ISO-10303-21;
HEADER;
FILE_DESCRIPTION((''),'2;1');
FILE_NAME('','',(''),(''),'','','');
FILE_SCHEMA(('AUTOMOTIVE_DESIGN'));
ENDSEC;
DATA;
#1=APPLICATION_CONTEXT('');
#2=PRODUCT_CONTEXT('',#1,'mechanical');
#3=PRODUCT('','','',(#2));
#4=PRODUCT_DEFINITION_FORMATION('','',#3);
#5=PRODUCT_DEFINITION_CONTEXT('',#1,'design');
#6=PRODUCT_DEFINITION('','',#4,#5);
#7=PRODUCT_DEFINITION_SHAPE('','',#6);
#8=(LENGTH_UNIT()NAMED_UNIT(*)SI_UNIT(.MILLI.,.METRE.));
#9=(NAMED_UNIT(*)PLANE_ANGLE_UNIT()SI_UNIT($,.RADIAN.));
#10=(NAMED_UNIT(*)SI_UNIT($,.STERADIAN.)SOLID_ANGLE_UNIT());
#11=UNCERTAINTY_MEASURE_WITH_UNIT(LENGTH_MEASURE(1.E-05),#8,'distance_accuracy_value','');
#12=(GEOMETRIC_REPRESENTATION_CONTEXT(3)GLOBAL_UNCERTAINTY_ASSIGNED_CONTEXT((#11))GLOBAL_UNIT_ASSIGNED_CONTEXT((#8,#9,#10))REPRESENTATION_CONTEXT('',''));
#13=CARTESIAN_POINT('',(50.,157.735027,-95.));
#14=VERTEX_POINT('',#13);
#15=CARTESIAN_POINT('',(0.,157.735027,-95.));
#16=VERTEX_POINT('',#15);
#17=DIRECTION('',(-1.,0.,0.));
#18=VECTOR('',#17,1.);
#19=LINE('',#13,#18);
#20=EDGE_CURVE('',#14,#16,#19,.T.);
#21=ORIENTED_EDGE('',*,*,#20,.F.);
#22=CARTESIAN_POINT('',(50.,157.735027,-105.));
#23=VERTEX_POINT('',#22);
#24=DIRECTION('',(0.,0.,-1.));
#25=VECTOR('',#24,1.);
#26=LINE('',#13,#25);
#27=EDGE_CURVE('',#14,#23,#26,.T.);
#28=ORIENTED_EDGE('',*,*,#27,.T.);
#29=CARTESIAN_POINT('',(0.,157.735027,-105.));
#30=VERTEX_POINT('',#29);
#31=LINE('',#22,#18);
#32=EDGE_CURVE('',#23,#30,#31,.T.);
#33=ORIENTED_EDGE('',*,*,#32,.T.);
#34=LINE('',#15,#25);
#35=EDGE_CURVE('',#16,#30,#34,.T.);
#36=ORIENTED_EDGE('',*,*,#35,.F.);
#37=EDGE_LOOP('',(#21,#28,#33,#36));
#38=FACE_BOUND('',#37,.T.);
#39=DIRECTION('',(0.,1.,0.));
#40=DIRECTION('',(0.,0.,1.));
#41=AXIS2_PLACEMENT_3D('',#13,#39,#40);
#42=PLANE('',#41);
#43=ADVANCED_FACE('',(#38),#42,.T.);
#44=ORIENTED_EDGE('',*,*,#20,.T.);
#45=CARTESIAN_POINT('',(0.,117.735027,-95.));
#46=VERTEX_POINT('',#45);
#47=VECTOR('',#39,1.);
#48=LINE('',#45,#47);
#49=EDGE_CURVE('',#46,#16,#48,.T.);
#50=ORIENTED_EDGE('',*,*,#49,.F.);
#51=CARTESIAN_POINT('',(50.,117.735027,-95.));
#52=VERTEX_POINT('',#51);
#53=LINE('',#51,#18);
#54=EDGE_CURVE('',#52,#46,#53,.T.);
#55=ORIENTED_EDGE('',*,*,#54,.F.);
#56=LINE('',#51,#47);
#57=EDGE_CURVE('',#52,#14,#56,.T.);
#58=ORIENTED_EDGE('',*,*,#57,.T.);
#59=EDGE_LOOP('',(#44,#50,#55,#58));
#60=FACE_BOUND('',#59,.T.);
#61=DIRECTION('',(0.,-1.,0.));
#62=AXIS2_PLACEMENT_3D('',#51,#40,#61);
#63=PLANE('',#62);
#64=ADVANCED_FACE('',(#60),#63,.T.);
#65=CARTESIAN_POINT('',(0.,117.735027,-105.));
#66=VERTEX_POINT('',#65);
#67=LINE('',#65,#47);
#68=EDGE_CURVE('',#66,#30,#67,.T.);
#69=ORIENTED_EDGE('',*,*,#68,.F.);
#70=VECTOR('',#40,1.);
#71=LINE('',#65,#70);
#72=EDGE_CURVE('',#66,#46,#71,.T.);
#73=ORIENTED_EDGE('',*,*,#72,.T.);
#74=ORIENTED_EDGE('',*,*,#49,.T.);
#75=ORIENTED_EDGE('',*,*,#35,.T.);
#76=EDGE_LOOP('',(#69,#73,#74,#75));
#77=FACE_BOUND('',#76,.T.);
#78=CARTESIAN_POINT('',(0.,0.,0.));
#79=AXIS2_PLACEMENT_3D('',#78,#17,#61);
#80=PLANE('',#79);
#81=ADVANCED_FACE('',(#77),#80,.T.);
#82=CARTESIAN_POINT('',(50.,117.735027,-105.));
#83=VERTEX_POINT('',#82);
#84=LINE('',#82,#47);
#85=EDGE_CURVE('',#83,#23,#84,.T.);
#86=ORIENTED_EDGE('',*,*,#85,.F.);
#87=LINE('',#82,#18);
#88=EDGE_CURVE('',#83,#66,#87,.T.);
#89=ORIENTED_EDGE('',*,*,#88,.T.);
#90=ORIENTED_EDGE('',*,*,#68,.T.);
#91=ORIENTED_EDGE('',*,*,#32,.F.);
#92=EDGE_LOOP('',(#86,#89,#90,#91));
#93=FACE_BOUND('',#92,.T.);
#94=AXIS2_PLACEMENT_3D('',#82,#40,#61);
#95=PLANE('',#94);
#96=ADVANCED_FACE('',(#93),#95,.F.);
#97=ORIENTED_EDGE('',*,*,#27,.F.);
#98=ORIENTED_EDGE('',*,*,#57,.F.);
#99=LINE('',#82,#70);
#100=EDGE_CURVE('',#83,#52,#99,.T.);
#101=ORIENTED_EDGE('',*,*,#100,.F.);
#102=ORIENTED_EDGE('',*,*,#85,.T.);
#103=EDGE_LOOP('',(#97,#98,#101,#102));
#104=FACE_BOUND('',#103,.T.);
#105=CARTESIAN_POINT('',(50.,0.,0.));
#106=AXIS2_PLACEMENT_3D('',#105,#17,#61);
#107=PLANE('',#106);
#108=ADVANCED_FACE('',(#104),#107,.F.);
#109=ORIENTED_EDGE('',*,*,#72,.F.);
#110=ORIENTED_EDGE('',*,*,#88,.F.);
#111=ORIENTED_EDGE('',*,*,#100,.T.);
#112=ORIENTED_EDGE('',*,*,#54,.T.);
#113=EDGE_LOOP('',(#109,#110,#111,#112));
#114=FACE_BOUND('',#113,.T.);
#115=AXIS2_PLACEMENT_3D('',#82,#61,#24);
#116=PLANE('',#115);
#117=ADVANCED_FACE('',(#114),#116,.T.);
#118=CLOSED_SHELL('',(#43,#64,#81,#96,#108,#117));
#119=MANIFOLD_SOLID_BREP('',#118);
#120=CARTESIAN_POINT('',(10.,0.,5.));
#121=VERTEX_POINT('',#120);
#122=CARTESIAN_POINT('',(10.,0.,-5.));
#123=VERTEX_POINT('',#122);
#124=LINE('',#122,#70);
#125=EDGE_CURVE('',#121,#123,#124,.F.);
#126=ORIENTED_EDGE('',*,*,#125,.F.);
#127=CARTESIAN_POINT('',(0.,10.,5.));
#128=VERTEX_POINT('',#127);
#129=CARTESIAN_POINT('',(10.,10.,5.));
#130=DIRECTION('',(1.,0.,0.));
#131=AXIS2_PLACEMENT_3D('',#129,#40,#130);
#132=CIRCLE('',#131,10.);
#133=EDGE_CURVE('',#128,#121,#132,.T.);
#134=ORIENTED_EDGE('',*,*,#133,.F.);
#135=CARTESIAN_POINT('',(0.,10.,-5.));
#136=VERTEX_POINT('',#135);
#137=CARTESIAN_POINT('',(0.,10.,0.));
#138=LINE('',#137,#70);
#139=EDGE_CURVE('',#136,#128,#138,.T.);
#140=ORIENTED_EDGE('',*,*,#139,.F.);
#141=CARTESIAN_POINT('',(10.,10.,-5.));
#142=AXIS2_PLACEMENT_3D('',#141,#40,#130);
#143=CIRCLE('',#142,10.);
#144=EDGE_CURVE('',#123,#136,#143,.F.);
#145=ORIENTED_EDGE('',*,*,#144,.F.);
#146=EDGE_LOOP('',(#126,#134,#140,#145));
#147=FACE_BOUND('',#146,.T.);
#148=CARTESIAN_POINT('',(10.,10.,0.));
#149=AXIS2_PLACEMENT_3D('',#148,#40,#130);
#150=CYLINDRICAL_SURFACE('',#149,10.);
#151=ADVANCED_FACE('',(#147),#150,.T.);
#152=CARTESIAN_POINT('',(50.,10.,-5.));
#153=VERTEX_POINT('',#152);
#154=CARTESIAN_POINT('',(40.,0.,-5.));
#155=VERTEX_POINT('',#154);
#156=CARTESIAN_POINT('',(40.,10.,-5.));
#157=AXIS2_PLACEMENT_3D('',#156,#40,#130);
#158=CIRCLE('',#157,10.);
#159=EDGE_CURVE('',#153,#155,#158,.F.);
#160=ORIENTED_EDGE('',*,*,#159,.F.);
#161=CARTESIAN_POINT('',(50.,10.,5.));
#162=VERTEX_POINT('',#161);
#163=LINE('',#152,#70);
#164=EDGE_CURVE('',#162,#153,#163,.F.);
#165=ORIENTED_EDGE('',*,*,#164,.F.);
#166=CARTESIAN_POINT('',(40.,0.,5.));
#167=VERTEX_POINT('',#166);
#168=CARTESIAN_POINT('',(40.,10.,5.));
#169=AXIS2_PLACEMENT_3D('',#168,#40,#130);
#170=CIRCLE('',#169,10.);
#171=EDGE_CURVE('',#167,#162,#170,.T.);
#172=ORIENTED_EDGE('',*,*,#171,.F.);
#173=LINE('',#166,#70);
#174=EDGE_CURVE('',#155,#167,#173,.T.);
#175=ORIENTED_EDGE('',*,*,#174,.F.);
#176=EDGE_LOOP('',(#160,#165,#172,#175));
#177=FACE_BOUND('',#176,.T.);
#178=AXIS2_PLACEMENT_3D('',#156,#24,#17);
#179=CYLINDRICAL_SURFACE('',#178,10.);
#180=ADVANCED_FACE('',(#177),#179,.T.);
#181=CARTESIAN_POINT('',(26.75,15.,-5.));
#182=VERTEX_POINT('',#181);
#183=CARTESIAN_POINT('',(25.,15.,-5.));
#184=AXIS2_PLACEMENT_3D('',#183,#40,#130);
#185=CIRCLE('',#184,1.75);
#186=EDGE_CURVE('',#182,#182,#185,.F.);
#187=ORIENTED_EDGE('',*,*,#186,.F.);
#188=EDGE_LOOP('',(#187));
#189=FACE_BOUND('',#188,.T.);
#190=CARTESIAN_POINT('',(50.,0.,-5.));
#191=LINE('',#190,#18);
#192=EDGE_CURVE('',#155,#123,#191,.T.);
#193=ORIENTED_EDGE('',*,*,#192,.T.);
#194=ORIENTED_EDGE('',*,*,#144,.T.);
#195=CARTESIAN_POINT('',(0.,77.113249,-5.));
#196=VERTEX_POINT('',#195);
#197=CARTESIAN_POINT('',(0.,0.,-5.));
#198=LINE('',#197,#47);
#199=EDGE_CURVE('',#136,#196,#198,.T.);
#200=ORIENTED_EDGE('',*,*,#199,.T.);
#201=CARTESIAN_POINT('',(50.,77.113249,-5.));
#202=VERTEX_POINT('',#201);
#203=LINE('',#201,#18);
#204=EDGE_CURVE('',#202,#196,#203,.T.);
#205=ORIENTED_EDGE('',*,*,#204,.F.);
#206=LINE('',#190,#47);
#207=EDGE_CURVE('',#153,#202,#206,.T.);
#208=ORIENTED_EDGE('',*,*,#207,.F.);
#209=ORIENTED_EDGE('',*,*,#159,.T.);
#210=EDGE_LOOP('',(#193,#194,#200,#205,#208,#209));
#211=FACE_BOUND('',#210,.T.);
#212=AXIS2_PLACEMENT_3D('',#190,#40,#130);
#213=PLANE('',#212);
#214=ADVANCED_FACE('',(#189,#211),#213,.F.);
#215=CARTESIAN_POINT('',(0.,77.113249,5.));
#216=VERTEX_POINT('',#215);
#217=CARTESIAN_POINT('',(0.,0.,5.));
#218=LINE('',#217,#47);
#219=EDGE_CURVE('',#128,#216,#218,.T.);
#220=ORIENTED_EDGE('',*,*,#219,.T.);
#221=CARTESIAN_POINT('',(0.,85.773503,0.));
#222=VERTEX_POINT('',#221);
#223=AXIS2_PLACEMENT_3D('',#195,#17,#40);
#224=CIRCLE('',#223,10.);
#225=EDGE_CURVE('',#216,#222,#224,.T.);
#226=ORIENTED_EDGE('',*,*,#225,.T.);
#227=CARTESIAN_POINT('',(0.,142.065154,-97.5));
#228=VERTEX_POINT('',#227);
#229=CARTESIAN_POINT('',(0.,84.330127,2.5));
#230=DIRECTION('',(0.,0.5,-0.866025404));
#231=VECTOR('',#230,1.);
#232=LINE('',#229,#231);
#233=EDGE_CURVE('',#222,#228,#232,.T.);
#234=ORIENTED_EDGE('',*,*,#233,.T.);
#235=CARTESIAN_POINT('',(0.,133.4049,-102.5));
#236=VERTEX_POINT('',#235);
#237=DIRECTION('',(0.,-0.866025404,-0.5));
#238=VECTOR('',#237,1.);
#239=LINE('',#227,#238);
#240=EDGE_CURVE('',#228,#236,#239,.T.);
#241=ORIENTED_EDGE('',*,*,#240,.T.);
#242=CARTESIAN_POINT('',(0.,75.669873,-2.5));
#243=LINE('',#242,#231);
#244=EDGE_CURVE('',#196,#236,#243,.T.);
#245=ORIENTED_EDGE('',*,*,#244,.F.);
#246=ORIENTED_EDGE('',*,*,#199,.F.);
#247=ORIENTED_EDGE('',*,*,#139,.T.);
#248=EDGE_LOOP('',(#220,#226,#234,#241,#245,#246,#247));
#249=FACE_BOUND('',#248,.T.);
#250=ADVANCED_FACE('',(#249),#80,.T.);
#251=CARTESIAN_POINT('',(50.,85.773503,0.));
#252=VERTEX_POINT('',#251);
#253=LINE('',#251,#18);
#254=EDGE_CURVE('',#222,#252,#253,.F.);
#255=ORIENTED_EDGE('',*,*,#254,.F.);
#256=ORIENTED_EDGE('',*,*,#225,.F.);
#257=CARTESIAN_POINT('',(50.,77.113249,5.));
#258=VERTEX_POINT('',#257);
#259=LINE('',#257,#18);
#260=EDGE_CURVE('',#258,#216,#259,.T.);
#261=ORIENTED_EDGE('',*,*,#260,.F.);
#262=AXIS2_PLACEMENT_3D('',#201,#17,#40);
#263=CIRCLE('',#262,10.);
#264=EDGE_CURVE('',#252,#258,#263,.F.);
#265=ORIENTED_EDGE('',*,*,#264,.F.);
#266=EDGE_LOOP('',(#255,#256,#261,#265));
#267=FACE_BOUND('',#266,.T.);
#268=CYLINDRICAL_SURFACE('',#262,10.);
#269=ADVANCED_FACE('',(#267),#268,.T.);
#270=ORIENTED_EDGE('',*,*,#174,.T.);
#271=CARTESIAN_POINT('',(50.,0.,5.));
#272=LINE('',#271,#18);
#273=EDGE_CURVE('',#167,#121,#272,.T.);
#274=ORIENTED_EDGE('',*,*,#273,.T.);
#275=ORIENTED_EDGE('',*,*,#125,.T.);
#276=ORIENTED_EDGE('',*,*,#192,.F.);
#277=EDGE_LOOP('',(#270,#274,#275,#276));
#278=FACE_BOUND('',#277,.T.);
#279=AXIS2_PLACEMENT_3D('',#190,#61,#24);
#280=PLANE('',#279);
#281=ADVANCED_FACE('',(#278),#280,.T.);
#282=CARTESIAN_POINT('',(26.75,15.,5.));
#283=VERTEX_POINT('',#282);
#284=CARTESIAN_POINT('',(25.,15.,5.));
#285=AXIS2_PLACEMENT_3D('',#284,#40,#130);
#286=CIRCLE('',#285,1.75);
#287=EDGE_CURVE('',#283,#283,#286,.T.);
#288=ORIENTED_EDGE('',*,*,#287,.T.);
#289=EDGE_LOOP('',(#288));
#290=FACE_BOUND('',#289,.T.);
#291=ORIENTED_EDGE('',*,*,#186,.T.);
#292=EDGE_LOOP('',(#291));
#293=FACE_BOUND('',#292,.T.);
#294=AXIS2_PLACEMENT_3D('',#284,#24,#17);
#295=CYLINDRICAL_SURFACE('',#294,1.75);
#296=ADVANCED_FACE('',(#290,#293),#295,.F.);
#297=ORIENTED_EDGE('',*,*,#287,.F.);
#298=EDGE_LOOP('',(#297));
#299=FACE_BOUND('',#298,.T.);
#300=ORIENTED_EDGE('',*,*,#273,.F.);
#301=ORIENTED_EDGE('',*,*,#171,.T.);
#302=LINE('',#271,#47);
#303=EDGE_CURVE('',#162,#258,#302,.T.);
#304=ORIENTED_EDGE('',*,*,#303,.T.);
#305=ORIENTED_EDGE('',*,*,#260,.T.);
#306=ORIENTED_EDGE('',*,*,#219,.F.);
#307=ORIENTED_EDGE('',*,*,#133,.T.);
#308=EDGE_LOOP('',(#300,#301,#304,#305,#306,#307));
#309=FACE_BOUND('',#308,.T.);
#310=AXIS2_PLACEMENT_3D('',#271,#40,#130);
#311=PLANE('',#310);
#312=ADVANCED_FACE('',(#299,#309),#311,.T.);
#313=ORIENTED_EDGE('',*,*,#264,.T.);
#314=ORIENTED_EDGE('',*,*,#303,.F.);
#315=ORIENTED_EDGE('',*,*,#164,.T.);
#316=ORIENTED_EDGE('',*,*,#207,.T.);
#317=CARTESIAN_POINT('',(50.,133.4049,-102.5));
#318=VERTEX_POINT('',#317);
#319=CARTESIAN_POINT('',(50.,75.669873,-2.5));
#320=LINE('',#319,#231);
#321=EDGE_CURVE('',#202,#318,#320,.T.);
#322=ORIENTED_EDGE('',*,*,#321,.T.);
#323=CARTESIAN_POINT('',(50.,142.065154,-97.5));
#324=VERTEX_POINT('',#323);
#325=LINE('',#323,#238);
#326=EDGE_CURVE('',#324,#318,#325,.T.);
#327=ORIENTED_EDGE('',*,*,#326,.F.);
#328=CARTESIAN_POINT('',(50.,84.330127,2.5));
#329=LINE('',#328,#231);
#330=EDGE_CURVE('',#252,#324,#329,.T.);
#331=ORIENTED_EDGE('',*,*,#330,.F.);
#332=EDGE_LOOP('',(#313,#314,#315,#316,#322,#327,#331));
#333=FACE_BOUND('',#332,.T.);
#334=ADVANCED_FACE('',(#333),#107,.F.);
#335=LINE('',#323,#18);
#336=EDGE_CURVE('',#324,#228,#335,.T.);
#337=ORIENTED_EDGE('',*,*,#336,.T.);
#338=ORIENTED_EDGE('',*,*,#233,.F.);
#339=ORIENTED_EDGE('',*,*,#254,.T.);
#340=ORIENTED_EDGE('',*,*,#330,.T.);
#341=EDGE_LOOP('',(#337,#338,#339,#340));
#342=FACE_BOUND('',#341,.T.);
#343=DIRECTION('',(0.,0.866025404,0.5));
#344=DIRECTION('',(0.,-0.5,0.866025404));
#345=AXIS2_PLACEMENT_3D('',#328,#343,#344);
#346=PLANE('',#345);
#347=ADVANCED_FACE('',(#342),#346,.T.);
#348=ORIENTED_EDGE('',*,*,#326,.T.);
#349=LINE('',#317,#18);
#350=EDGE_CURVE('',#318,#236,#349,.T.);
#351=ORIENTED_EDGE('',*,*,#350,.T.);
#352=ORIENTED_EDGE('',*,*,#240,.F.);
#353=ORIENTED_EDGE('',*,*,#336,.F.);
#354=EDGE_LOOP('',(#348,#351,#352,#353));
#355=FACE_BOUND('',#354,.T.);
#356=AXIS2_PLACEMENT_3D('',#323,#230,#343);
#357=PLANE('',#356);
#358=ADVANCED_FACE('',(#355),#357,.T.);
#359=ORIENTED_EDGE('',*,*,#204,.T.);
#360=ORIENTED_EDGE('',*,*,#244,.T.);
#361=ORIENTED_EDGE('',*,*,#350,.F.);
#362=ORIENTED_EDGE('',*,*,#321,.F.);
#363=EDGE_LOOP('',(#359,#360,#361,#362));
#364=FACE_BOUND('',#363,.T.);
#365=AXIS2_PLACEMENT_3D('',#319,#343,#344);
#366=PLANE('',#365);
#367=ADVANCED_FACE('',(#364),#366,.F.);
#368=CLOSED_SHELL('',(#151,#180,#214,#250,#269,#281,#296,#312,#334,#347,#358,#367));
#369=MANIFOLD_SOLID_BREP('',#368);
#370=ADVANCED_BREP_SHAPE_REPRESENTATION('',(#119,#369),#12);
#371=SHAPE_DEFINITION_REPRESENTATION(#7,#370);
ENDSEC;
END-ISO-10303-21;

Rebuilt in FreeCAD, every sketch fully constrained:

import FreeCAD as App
import Part
import Sketcher

V = App.Vector
Q = App.Units.Quantity


def edges_at(feature, points):
    """Names of the edges that pass closest to the given points."""
    edges = feature.Shape.Edges
    near = lambda p: min(range(len(edges)), key=lambda i: edges[i].distToShape(Part.Vertex(*p))[0])
    return sorted({f"Edge{near(p) + 1}" for p in points})

doc = App.newDocument("Part")
body = doc.addObject("PartDesign::Body", "Body")

# Sketch on YZ plane
sketch1 = body.newObject("Sketcher::SketchObject", "Sketch")
sketch1.AttachmentSupport = (doc.getObject("YZ_Plane"), [""])
sketch1.MapMode = "FlatFace"
sketch1.addGeometry([
    Part.LineSegment(V(0, -5, 0), V(77, -5, 0)),  # 0
    Part.LineSegment(V(77, -5, 0), V(133, -102, 0)),  # 1
    Part.LineSegment(V(133, -102, 0), V(142, -98, 0)),  # 2
    Part.LineSegment(V(142, -98, 0), V(83, 5, 0)),  # 3
    Part.LineSegment(V(83, 5, 0), V(0, 5, 0)),  # 4
    Part.LineSegment(V(0, 5, 0), V(0, -5, 0)),  # 5
], False)
sketch1.addConstraint([
    Sketcher.Constraint("Coincident", 0, 2, 1, 1),
    Sketcher.Constraint("Coincident", 1, 2, 2, 1),
    Sketcher.Constraint("Coincident", 2, 2, 3, 1),
    Sketcher.Constraint("Coincident", 3, 2, 4, 1),
    Sketcher.Constraint("Coincident", 4, 2, 5, 1),
    Sketcher.Constraint("Coincident", 5, 2, 0, 1),
    Sketcher.Constraint("Horizontal", 0),
    Sketcher.Constraint("Horizontal", 4),
    Sketcher.Constraint("Vertical", 5),
    Sketcher.Constraint("Symmetric", 4, 2, 5, 2, -1, 1),
    Sketcher.Constraint("Perpendicular", 1, 2),
    Sketcher.Constraint("Perpendicular", 2, 3),
    Sketcher.Constraint("DistanceY", 5, 2, 5, 1, Q("10 mm")),
    Sketcher.Constraint("Angle", 1, Q("-60 deg")),
    Sketcher.Constraint("Distance", 2, Q("10 mm")),
    Sketcher.Constraint("DistanceY", 1, 2, -1, 1, Q("102.5 mm")),
    Sketcher.Constraint("DistanceX", 0, 1, 0, 2, Q("77.113249 mm")),
])
pad1 = body.newObject("PartDesign::Pad", "Pad")
pad1.Profile = sketch1
pad1.Length = 50
doc.recompute()

fillet = body.newObject("PartDesign::Fillet", "Fillet")
fillet.Base = (pad1, edges_at(pad1, [(50, 0, 0), (0, 0, 0)]))
fillet.Radius = 10
doc.recompute()

fillet2 = body.newObject("PartDesign::Fillet", "Fillet001")
fillet2.Base = (fillet, edges_at(fillet, [(25, 82.887, 5)]))
fillet2.Radius = 10

# Sketch on XY plane
sketch2 = body.newObject("Sketcher::SketchObject", "Sketch001")
sketch2.AttachmentSupport = (doc.getObject("XY_Plane"), [""])
sketch2.MapMode = "FlatFace"
sketch2.addGeometry(Part.Circle(V(25, 15, 0), V(0, 0, 1), 1.8), False)
sketch2.addConstraint([
    Sketcher.Constraint("Diameter", 0, Q("3.5 mm")),
    Sketcher.Constraint("DistanceX", -1, 1, 0, 3, Q("25 mm")),
    Sketcher.Constraint("DistanceY", -1, 1, 0, 3, Q("15 mm")),
])
pocket1 = body.newObject("PartDesign::Pocket", "Pocket")
pocket1.Profile = sketch2
pocket1.Type = "ThroughAll"
pocket1.Midplane = True
body2 = doc.addObject("PartDesign::Body", "Body001")

# Sketch on YZ plane
sketch3 = body2.newObject("Sketcher::SketchObject", "Sketch002")
sketch3.AttachmentSupport = (doc.getObject("YZ_Plane001"), [""])
sketch3.MapMode = "FlatFace"
sketch3.addGeometry([
    Part.LineSegment(V(118, -95, 0), V(118, -105, 0)),
    Part.LineSegment(V(118, -105, 0), V(158, -105, 0)),
    Part.LineSegment(V(158, -105, 0), V(158, -95, 0)),
    Part.LineSegment(V(158, -95, 0), V(118, -95, 0)),
], False)
sketch3.addConstraint([
    Sketcher.Constraint("Coincident", 0, 2, 1, 1),
    Sketcher.Constraint("Coincident", 1, 2, 2, 1),
    Sketcher.Constraint("Coincident", 2, 2, 3, 1),
    Sketcher.Constraint("Coincident", 3, 2, 0, 1),
    Sketcher.Constraint("Vertical", 0),
    Sketcher.Constraint("Horizontal", 1),
    Sketcher.Constraint("Vertical", 2),
    Sketcher.Constraint("Horizontal", 3),
    Sketcher.Constraint("DistanceX", 1, 1, 1, 2, Q("40 mm")),
    Sketcher.Constraint("DistanceY", 0, 2, 0, 1, Q("10 mm")),
    Sketcher.Constraint("DistanceY", 0, 2, -1, 1, Q("105 mm")),
    Sketcher.Constraint("DistanceX", -1, 1, 0, 2, Q("117.735027 mm")),
])
pad2 = body2.newObject("PartDesign::Pad", "Pad001")
pad2.Profile = sketch3
pad2.Length = 50

doc.recompute()
